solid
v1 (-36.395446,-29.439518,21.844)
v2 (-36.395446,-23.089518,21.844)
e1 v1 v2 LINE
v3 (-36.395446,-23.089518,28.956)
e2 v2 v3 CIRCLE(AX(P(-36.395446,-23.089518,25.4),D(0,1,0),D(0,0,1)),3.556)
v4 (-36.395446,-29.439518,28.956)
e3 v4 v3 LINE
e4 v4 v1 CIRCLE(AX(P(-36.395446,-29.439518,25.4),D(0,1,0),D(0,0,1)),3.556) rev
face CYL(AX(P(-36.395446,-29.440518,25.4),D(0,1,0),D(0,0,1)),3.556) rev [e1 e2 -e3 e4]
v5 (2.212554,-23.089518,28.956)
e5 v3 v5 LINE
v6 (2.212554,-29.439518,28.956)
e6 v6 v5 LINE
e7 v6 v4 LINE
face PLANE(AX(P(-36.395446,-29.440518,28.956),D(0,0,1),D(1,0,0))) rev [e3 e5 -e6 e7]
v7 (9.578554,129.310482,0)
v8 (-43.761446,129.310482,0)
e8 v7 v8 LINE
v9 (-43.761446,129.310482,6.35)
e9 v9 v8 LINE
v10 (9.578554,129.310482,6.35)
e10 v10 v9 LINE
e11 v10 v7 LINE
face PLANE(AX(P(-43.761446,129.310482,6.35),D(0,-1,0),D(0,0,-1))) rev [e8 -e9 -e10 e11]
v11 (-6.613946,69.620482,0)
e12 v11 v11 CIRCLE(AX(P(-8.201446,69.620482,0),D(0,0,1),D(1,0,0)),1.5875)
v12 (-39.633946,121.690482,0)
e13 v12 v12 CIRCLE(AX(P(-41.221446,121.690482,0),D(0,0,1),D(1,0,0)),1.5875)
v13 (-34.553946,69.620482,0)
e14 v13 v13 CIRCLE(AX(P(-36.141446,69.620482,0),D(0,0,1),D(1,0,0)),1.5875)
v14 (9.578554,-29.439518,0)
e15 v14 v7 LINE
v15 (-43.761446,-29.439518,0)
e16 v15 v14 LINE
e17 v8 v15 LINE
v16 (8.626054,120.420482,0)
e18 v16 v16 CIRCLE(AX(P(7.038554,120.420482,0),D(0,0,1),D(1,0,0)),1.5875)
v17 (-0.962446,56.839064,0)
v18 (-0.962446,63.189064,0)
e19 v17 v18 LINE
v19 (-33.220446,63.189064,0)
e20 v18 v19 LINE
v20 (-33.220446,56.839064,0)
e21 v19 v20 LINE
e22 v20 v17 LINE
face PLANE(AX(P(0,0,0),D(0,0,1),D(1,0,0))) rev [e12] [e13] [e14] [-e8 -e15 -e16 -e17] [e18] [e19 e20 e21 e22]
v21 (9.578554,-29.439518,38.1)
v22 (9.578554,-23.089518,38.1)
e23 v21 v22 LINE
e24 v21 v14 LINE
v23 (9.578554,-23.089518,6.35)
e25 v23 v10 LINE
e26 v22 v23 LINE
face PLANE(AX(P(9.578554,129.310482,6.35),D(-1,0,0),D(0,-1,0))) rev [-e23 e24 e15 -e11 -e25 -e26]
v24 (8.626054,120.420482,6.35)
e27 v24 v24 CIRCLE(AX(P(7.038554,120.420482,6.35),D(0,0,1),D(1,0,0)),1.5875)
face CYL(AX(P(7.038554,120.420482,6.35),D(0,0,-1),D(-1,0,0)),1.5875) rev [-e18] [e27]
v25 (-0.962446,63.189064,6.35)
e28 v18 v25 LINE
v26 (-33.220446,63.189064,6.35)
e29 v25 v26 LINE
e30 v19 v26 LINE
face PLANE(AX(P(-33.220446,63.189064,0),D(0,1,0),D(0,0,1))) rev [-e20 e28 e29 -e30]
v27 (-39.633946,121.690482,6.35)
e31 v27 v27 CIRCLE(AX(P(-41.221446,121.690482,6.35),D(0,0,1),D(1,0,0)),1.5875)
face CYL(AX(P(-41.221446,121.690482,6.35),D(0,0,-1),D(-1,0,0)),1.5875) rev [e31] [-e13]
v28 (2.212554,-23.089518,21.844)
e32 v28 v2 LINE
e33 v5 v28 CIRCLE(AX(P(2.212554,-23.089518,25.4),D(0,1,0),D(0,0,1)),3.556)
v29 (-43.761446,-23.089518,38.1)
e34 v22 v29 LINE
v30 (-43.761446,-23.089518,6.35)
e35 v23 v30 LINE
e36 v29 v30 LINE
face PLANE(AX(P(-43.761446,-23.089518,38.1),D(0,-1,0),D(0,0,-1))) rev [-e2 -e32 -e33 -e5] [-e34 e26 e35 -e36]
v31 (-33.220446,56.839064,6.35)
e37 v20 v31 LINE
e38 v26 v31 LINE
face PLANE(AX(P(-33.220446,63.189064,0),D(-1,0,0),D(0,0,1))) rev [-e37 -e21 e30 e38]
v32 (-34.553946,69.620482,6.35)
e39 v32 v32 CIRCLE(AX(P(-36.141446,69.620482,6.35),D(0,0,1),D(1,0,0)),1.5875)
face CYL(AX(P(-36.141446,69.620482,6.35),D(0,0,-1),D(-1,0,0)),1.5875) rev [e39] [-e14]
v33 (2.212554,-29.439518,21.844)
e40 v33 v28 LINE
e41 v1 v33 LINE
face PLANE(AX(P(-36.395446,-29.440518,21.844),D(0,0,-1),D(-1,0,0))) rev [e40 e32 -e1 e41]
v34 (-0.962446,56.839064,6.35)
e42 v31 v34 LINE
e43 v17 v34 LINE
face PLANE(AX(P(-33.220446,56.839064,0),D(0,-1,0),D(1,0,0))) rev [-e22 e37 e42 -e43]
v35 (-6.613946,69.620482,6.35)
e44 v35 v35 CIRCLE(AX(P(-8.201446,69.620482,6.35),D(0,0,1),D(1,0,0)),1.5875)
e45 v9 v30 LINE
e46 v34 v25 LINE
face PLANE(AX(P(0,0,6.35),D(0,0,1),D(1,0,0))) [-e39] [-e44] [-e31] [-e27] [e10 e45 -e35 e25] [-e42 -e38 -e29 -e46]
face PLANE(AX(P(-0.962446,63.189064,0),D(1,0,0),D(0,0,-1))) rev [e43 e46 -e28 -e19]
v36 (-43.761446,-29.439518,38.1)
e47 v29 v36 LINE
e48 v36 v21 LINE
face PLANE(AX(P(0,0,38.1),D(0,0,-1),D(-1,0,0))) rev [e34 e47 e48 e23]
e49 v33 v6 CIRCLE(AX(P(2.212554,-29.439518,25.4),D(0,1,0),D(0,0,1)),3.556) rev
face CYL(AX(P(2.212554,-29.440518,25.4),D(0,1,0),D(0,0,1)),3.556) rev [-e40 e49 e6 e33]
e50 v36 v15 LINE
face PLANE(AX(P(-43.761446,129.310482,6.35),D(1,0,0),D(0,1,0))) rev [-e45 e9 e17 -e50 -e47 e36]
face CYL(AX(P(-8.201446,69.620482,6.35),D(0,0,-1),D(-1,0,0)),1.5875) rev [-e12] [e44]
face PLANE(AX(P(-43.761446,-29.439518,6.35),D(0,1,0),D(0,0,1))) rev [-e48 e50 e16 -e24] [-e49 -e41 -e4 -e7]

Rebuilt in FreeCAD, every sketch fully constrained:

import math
import FreeCAD as App
import Part
import Sketcher

V = App.Vector
Q = App.Units.Quantity

doc = App.newDocument("Part")
body = doc.addObject("PartDesign::Body", "Body")

# Sketch on XY plane
sketch1 = doc.addObject("Sketcher::SketchObject", "Sketch")
body.addObject(sketch1)
sketch1.AttachmentSupport = (doc.XY_Plane, [""])
sketch1.MapMode = "FlatFace"
sketch1.addGeometry(Part.LineSegment(V(-43.8, 129.3, 0), V(-43.8, -29.4, 0)), False)
sketch1.addGeometry(Part.LineSegment(V(-43.8, -29.4, 0), V(9.6, -29.4, 0)), False)
sketch1.addGeometry(Part.LineSegment(V(9.6, -29.4, 0), V(9.6, 129.3, 0)), False)
sketch1.addGeometry(Part.LineSegment(V(9.6, 129.3, 0), V(-43.8, 129.3, 0)), False)
sketch1.addGeometry(Part.Circle(V(-36.1, 69.6, 0), V(0, 0, 1), 1.6), False)
sketch1.addGeometry(Part.Circle(V(-8.2, 69.6, 0), V(0, 0, 1), 1.6), False)
sketch1.addGeometry(Part.Circle(V(-41.2, 121.7, 0), V(0, 0, 1), 1.6), False)
sketch1.addGeometry(Part.Circle(V(7, 120.4, 0), V(0, 0, 1), 1.6), False)
sketch1.addConstraint(Sketcher.Constraint("Coincident", 0, 2, 1, 1))
sketch1.addConstraint(Sketcher.Constraint("Coincident", 1, 2, 2, 1))
sketch1.addConstraint(Sketcher.Constraint("Coincident", 2, 2, 3, 1))
sketch1.addConstraint(Sketcher.Constraint("Coincident", 3, 2, 0, 1))
sketch1.addConstraint(Sketcher.Constraint("Vertical", 0))
sketch1.addConstraint(Sketcher.Constraint("Horizontal", 1))
sketch1.addConstraint(Sketcher.Constraint("Vertical", 2))
sketch1.addConstraint(Sketcher.Constraint("Horizontal", 3))
sketch1.addConstraint(Sketcher.Constraint("Equal", 4, 5))
sketch1.addConstraint(Sketcher.Constraint("Equal", 5, 6))
sketch1.addConstraint(Sketcher.Constraint("Equal", 6, 7))
sketch1.addConstraint(Sketcher.Constraint("Horizontal", 4, 3, 5, 3))
sketch1.addConstraint(Sketcher.Constraint("Diameter", 4, Q("0.125 in")))
sketch1.addConstraint(Sketcher.Constraint("DistanceX", 1, 1, 1, 2, Q("2.1 in")))
sketch1.addConstraint(Sketcher.Constraint("DistanceY", 5, 3, 7, 3, Q("2 in")))
sketch1.addConstraint(Sketcher.Constraint("DistanceX", 0, 2, 7, 3, Q("2 in")))
sketch1.addConstraint(Sketcher.Constraint("DistanceX", 6, 3, 1, 2, Q("2 in")))
sketch1.addConstraint(Sketcher.Constraint("DistanceY", 0, 2, 0, 1, Q("6.25 in")))
sketch1.addConstraint(Sketcher.Constraint("DistanceX", 4, 3, 5, 3, Q("1.1 in")))
sketch1.addConstraint(Sketcher.Constraint("DistanceX", 6, 3, 4, 3, Q("0.2 in")))
sketch1.addConstraint(Sketcher.Constraint("DistanceY", 0, 2, 4, 3, Q("3.9 in")))
sketch1.addConstraint(Sketcher.Constraint("DistanceY", 6, 3, 2, 2, Q("0.3 in")))
sketch1.addConstraint(Sketcher.Constraint("DistanceY", -1, 1, 4, 3, Q("69.620482 mm")))
sketch1.addConstraint(Sketcher.Constraint("DistanceX", 4, 3, -1, 1, Q("36.141446 mm")))
pad1 = doc.addObject("PartDesign::Pad", "Pad")
body.addObject(pad1)
pad1.Profile = sketch1
pad1.Length = Q("0.25 in")

# Sketch on XY plane
sketch2 = doc.addObject("Sketcher::SketchObject", "Sketch001")
body.addObject(sketch2)
sketch2.AttachmentSupport = (doc.XY_Plane, [""])
sketch2.MapMode = "FlatFace"
sketch2.AttachmentOffset = App.Placement(V(0, 0, 0.25 * 25.4), App.Rotation())
sketch2.addGeometry(Part.LineSegment(V(-33, 63, 0), V(-33, 57, 0)), False)
sketch2.addGeometry(Part.LineSegment(V(-33, 57, 0), V(-1, 57, 0)), False)
sketch2.addGeometry(Part.LineSegment(V(-1, 57, 0), V(-1, 63, 0)), False)
sketch2.addGeometry(Part.LineSegment(V(-1, 63, 0), V(-33, 63, 0)), False)
sketch2.addConstraint(Sketcher.Constraint("Coincident", 0, 2, 1, 1))
sketch2.addConstraint(Sketcher.Constraint("Coincident", 1, 2, 2, 1))
sketch2.addConstraint(Sketcher.Constraint("Coincident", 2, 2, 3, 1))
sketch2.addConstraint(Sketcher.Constraint("Coincident", 3, 2, 0, 1))
sketch2.addConstraint(Sketcher.Constraint("Vertical", 0))
sketch2.addConstraint(Sketcher.Constraint("Horizontal", 1))
sketch2.addConstraint(Sketcher.Constraint("Vertical", 2))
sketch2.addConstraint(Sketcher.Constraint("Horizontal", 3))
sketch2.addConstraint(Sketcher.Constraint("DistanceX", 1, 1, 1, 2, Q("1.27 in")))
sketch2.addConstraint(Sketcher.Constraint("DistanceY", 0, 2, 0, 1, Q("0.25 in")))
sketch2.addConstraint(Sketcher.Constraint("DistanceX", 0, 2, -1, 1, Q("33.220446 mm")))
sketch2.addConstraint(Sketcher.Constraint("DistanceY", -1, 1, 0, 2, Q("56.839064 mm")))
pocket1 = doc.addObject("PartDesign::Pocket", "Pocket")
body.addObject(pocket1)
pocket1.Profile = sketch2
pocket1.Type = "ThroughAll"

# Sketch on XY plane
sketch3 = doc.addObject("Sketcher::SketchObject", "Sketch002")
body.addObject(sketch3)
sketch3.AttachmentSupport = (doc.XY_Plane, [""])
sketch3.MapMode = "FlatFace"
sketch3.AttachmentOffset = App.Placement(V(0, 0, 0.25 * 25.4), App.Rotation())
sketch3.addGeometry(Part.LineSegment(V(-44, -23, 0), V(-44, -29, 0)), False)
sketch3.addGeometry(Part.LineSegment(V(-44, -29, 0), V(10, -29, 0)), False)
sketch3.addGeometry(Part.LineSegment(V(10, -29, 0), V(10, -23, 0)), False)
sketch3.addGeometry(Part.LineSegment(V(10, -23, 0), V(-44, -23, 0)), False)
sketch3.addConstraint(Sketcher.Constraint("Coincident", 0, 2, 1, 1))
sketch3.addConstraint(Sketcher.Constraint("Coincident", 1, 2, 2, 1))
sketch3.addConstraint(Sketcher.Constraint("Coincident", 2, 2, 3, 1))
sketch3.addConstraint(Sketcher.Constraint("Coincident", 3, 2, 0, 1))
sketch3.addConstraint(Sketcher.Constraint("Vertical", 0))
sketch3.addConstraint(Sketcher.Constraint("Horizontal", 1))
sketch3.addConstraint(Sketcher.Constraint("Vertical", 2))
sketch3.addConstraint(Sketcher.Constraint("Horizontal", 3))
sketch3.addConstraint(Sketcher.Constraint("DistanceX", 1, 1, 1, 2, Q("2.1 in")))
sketch3.addConstraint(Sketcher.Constraint("DistanceY", 0, 2, 0, 1, Q("0.25 in")))
sketch3.addConstraint(Sketcher.Constraint("DistanceY", 0, 2, -1, 1, Q("29.439518 mm")))
sketch3.addConstraint(Sketcher.Constraint("DistanceX", 0, 2, -1, 1, Q("43.761446 mm")))
pad2 = doc.addObject("PartDesign::Pad", "Pad001")
body.addObject(pad2)
pad2.Profile = sketch3
pad2.Length = Q("1.25 in")

# Sketch on XZ plane
sketch4 = doc.addObject("Sketcher::SketchObject", "Sketch003")
body.addObject(sketch4)
sketch4.AttachmentSupport = (doc.XZ_Plane, [""])
sketch4.MapMode = "FlatFace"
sketch4.AttachmentOffset = App.Placement(V(0, 0, 23.089518), App.Rotation())
sketch4.addGeometry(Part.LineSegment(V(2.2, 21.8, 0), V(-36.4, 21.8, 0)), False)
sketch4.addGeometry(Part.ArcOfCircle(Part.Circle(V(-36.4, 25.4, 0), V(0, 0, 1), 3.6), math.radians(90), math.radians(270)), False)
sketch4.addGeometry(Part.LineSegment(V(-36.4, 29, 0), V(2.2, 29, 0)), False)
sketch4.addGeometry(Part.ArcOfCircle(Part.Circle(V(2.2, 25.4, 0), V(0, 0, 1), 3.6), math.radians(-90), math.radians(90)), False)
sketch4.addConstraint(Sketcher.Constraint("Tangent", 0, 2, 1, 2))
sketch4.addConstraint(Sketcher.Constraint("Tangent", 1, 1, 2, 1))
sketch4.addConstraint(Sketcher.Constraint("Tangent", 2, 2, 3, 2))
sketch4.addConstraint(Sketcher.Constraint("Tangent", 3, 1, 0, 1))
sketch4.addConstraint(Sketcher.Constraint("Horizontal", 0))
sketch4.addConstraint(Sketcher.Constraint("Horizontal", 2))
sketch4.addConstraint(Sketcher.Constraint("Radius", 1, Q("0.14 in")))
sketch4.addConstraint(Sketcher.Constraint("DistanceY", -1, 1, 1, 3, Q("1 in")))
sketch4.addConstraint(Sketcher.Constraint("DistanceX", 0, 2, 0, 1, Q("1.52 in")))
sketch4.addConstraint(Sketcher.Constraint("DistanceX", 1, 3, -1, 1, Q("36.395446 mm")))
pocket2 = doc.addObject("PartDesign::Pocket", "Pocket001")
body.addObject(pocket2)
pocket2.Profile = sketch4
pocket2.Type = "UpToFirst"
pocket2.Reversed = True

doc.recompute()
